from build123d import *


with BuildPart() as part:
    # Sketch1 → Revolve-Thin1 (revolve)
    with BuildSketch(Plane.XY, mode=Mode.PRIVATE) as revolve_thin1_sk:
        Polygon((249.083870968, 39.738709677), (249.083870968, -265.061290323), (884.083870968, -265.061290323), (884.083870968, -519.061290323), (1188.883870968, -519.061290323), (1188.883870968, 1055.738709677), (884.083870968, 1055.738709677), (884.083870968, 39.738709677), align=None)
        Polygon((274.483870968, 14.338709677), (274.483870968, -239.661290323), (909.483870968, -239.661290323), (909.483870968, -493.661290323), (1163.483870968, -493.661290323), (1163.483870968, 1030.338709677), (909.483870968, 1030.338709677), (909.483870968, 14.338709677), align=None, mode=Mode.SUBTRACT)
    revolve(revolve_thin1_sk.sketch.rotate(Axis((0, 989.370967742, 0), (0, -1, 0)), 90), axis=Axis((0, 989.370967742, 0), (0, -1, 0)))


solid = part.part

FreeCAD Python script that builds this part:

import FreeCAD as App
import Part
import Sketcher

V = App.Vector
Q = App.Units.Quantity


def add_polygon(sketch, points):
    """Adds a closed chain of lines whose ends are joined by coincident constraints."""
    first, n = sketch.GeometryCount, len(points)
    for a, b in zip(points, points[1:] + points[:1]):
        sketch.addGeometry(Part.LineSegment(App.Vector(*a, 0), App.Vector(*b, 0)), False)
    for i in range(n):
        sketch.addConstraint(Sketcher.Constraint("Coincident", first + i, 2, first + (i + 1) % n, 1))

doc = App.newDocument("Part")
body = doc.addObject("PartDesign::Body", "Body")

sketch1 = body.newObject("Sketcher::SketchObject", "Sketch")
sketch1.AttachmentSupport = (doc.getObject("XY_Plane"), [""])
sketch1.MapMode = "FlatFace"
add_polygon(sketch1, [(249, 40), (249, -265), (884, -265), (884, -519), (1189, -519), (1189, 1056), (884, 1056), (884, 40)])
add_polygon(sketch1, [(274, -240), (274, 14), (909, 14), (909, 1030), (1163, 1030), (1163, -494), (909, -494), (909, -240)])
sketch1.addConstraint(Sketcher.Constraint("Vertical", 0))
sketch1.addConstraint(Sketcher.Constraint("Horizontal", 1))
sketch1.addConstraint(Sketcher.Constraint("Vertical", 2))
sketch1.addConstraint(Sketcher.Constraint("Horizontal", 3))
sketch1.addConstraint(Sketcher.Constraint("Vertical", 4))
sketch1.addConstraint(Sketcher.Constraint("Horizontal", 5))
sketch1.addConstraint(Sketcher.Constraint("Vertical", 6))
sketch1.addConstraint(Sketcher.Constraint("Horizontal", 7))
sketch1.addConstraint(Sketcher.Constraint("Vertical", 8))
sketch1.addConstraint(Sketcher.Constraint("Horizontal", 9))
sketch1.addConstraint(Sketcher.Constraint("Vertical", 10))
sketch1.addConstraint(Sketcher.Constraint("Horizontal", 11))
sketch1.addConstraint(Sketcher.Constraint("Vertical", 12))
sketch1.addConstraint(Sketcher.Constraint("Horizontal", 13))
sketch1.addConstraint(Sketcher.Constraint("Vertical", 14))
sketch1.addConstraint(Sketcher.Constraint("Horizontal", 15))
sketch1.addConstraint(Sketcher.Constraint("Vertical", 2, 2, 5, 2))
sketch1.addConstraint(Sketcher.Constraint("Vertical", 10, 2, 13, 2))
sketch1.addConstraint(Sketcher.Constraint("Equal", 7, 9))
sketch1.addConstraint(Sketcher.Constraint("Equal", 5, 0))
sketch1.addConstraint(Sketcher.Constraint("Equal", 13, 2))
sketch1.addConstraint(Sketcher.Constraint("Equal", 2, 8))
sketch1.addConstraint(Sketcher.Constraint("Equal", 6, 10))
sketch1.addConstraint(Sketcher.Constraint("Equal", 8, 14))
sketch1.addConstraint(Sketcher.Constraint("DistanceX", 1, 1, 1, 2, Q("25 in")))
sketch1.addConstraint(Sketcher.Constraint("DistanceX", 3, 1, 3, 2, Q("12 in")))
sketch1.addConstraint(Sketcher.Constraint("DistanceX", 11, 1, 11, 2, Q("10 in")))
sketch1.addConstraint(Sketcher.Constraint("DistanceY", 4, 1, 4, 2, Q("62 in")))
sketch1.addConstraint(Sketcher.Constraint("DistanceX", 7, 2, 8, 2, Q("1 in")))
sketch1.addConstraint(Sketcher.Constraint("DistanceY", 8, 2, 7, 2, Q("1 in")))
sketch1.addConstraint(Sketcher.Constraint("DistanceX", -1, 1, 0, 2, Q("249.083871 mm")))
sketch1.addConstraint(Sketcher.Constraint("DistanceY", 0, 2, -1, 1, Q("265.06129 mm")))
revolution = body.newObject("PartDesign::Revolution", "Revolution")
revolution.Profile = sketch1
revolution.ReferenceAxis = (sketch1, ["V_Axis"])
revolution.Angle = 360

doc.recompute()
